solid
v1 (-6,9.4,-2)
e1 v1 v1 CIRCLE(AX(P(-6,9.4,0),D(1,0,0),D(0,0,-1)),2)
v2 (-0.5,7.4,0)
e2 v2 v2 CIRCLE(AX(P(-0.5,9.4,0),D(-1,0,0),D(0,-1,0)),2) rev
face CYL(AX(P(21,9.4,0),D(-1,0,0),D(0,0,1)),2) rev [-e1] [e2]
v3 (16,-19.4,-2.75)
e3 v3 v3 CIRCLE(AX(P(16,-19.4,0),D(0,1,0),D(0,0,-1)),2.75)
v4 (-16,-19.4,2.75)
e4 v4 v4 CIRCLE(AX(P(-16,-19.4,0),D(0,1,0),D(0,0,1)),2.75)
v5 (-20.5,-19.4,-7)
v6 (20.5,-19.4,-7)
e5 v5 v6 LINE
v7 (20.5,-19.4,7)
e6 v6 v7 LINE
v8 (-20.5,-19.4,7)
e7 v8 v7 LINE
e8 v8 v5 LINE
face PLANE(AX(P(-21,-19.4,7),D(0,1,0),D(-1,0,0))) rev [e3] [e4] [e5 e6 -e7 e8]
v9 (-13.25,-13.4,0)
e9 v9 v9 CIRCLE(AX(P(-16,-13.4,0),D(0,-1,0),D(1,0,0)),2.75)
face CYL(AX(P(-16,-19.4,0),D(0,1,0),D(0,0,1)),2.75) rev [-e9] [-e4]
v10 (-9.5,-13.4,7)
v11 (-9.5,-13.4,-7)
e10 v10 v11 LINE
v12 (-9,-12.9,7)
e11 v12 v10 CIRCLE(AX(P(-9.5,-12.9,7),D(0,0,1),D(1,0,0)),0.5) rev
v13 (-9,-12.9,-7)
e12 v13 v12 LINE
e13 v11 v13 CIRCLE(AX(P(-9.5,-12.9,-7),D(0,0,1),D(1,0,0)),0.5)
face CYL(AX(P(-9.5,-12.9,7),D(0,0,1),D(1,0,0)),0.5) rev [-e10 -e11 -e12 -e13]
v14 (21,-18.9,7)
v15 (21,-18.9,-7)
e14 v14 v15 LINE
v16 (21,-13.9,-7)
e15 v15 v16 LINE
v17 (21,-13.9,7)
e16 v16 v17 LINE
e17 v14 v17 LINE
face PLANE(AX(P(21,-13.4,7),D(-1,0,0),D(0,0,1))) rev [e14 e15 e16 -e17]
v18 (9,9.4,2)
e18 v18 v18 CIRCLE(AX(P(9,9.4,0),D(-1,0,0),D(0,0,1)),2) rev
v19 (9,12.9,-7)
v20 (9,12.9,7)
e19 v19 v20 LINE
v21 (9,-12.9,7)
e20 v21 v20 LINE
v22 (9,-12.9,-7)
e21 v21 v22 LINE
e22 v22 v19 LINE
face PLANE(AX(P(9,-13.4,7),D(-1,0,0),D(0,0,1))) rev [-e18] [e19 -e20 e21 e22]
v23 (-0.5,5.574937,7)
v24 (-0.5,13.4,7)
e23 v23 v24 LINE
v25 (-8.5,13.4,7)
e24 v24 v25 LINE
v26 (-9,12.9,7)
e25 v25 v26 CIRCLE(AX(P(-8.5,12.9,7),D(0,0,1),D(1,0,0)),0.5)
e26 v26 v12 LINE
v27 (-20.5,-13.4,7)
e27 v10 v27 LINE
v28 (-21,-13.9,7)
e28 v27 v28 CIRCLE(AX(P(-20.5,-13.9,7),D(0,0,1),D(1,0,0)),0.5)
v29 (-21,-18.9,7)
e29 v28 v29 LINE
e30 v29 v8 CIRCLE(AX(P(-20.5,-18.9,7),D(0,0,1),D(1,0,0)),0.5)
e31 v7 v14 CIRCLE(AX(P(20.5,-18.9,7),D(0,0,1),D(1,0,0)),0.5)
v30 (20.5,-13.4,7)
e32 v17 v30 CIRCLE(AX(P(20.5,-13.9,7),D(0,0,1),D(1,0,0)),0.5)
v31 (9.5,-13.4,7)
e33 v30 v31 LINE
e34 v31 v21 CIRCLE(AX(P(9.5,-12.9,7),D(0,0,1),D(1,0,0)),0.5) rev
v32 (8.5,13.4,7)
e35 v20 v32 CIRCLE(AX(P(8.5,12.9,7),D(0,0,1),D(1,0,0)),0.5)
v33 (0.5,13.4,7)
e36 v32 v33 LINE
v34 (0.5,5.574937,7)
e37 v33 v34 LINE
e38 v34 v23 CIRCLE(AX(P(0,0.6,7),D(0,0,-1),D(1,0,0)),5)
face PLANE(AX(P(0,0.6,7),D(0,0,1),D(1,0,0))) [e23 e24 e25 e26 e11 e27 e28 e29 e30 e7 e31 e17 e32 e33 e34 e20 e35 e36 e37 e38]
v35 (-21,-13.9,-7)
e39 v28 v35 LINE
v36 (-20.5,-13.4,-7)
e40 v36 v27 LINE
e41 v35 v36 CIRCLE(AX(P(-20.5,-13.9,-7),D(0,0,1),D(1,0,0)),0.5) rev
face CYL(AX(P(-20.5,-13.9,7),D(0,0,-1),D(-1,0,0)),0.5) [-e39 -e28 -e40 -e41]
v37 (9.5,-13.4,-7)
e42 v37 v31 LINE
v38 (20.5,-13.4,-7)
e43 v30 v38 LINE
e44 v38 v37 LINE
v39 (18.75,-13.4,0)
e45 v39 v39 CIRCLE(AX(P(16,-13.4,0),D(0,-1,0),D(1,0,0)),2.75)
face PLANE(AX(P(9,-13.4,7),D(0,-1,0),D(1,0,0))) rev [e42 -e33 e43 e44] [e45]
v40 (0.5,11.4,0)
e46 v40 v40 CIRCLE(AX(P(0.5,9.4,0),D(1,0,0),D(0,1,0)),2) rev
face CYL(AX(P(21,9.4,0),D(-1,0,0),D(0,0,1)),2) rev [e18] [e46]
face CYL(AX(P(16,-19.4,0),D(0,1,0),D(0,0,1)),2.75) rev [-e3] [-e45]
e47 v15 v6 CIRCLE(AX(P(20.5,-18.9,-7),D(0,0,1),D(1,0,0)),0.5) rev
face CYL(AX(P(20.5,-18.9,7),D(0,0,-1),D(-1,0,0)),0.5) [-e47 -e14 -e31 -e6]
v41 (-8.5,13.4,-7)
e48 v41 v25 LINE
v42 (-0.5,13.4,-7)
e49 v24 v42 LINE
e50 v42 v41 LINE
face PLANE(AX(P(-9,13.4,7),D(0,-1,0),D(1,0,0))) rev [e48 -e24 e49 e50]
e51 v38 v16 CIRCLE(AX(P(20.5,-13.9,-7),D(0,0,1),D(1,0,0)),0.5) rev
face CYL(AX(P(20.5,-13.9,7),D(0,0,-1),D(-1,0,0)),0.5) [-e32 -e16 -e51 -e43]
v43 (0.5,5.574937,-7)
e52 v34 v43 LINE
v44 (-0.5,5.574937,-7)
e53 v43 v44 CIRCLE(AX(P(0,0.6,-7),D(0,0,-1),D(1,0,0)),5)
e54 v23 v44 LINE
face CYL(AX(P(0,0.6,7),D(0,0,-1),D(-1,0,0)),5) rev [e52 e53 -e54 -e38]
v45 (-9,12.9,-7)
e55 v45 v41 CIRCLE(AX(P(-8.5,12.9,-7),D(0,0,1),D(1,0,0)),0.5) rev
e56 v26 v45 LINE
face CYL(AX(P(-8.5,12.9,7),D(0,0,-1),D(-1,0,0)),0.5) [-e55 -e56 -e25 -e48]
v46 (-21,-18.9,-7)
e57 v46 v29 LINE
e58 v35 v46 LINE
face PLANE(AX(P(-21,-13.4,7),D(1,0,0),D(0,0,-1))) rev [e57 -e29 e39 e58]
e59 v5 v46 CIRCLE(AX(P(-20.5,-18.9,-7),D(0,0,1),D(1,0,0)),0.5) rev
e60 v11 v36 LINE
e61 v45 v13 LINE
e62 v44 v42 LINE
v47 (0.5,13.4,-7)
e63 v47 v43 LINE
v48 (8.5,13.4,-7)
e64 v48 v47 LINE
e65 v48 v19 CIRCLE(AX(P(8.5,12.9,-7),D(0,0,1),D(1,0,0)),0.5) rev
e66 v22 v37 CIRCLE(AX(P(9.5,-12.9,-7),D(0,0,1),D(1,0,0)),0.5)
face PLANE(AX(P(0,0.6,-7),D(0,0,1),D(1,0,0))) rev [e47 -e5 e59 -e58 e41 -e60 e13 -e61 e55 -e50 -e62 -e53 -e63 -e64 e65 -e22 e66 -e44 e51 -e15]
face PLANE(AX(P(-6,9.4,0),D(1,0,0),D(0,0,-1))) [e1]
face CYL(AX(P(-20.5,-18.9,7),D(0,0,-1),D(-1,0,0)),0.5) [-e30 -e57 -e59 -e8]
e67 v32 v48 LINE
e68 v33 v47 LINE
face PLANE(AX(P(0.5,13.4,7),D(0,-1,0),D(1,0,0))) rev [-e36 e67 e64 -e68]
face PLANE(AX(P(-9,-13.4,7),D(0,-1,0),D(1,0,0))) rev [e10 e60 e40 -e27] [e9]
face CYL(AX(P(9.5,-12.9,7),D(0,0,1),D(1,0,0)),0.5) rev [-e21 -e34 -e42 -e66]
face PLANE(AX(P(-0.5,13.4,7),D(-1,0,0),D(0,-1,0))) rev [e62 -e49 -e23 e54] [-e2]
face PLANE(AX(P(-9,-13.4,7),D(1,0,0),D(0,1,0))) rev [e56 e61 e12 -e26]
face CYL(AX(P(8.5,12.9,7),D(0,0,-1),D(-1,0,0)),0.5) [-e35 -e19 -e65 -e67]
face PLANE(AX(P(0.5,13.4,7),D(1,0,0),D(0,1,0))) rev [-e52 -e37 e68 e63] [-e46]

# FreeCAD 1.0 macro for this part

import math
import FreeCAD as App
import Part
import Sketcher

V = App.Vector


def edges_at(feature, points):
    """Names of the edges that pass closest to the given points."""
    edges = feature.Shape.Edges
    near = lambda p: min(range(len(edges)), key=lambda i: edges[i].distToShape(Part.Vertex(*p))[0])
    return sorted({f"Edge{near(p) + 1}" for p in points})

doc = App.newDocument("Part")
body = doc.addObject("PartDesign::Body", "Body")

sketch1 = body.newObject("Sketcher::SketchObject", "Sketch")
sketch1.AttachmentSupport = (doc.getObject("XY_Plane"), [""])
sketch1.MapMode = "FlatFace"
sketch1.addGeometry([
    Part.LineSegment(V(-9, 13.4, 0), V(-9, -13.4, 0)),
    Part.LineSegment(V(-9, -13.4, 0), V(-21, -13.4, 0)),
    Part.LineSegment(V(-21, -13.4, 0), V(-21, -19.4, 0)),
    Part.LineSegment(V(-21, -19.4, 0), V(21, -19.4, 0)),
    Part.LineSegment(V(21, -19.4, 0), V(21, -13.4, 0)),
    Part.LineSegment(V(21, -13.4, 0), V(9, -13.4, 0)),
    Part.LineSegment(V(9, -13.4, 0), V(9, 13.4, 0)),
    Part.LineSegment(V(9, 13.4, 0), V(0.5, 13.4, 0)),
    Part.LineSegment(V(0.5, 13.4, 0), V(0.5, 5.6, 0)),
    Part.ArcOfCircle(Part.Circle(V(0, 0.6, 0), V(0, 0, 1), 5), math.radians(96), math.radians(444)),
    Part.LineSegment(V(-0.5, 5.6, 0), V(-0.5, 13.4, 0)),
    Part.LineSegment(V(-0.5, 13.4, 0), V(-9, 13.4, 0)),
], False)
sketch1.addConstraint([
    Sketcher.Constraint("Coincident", 0, 2, 1, 1),
    Sketcher.Constraint("Coincident", 1, 2, 2, 1),
    Sketcher.Constraint("Coincident", 2, 2, 3, 1),
    Sketcher.Constraint("Coincident", 3, 2, 4, 1),
    Sketcher.Constraint("Coincident", 4, 2, 5, 1),
    Sketcher.Constraint("Coincident", 5, 2, 6, 1),
    Sketcher.Constraint("Coincident", 6, 2, 7, 1),
    Sketcher.Constraint("Coincident", 7, 2, 8, 1),
    Sketcher.Constraint("Coincident", 8, 2, 9, 2),
    Sketcher.Constraint("Coincident", 9, 1, 10, 1),
    Sketcher.Constraint("Coincident", 10, 2, 11, 1),
    Sketcher.Constraint("Coincident", 11, 2, 0, 1),
    Sketcher.Constraint("Vertical", 0),
    Sketcher.Constraint("Horizontal", 1),
    Sketcher.Constraint("Vertical", 2),
    Sketcher.Constraint("Horizontal", 3),
    Sketcher.Constraint("Vertical", 4),
    Sketcher.Constraint("Horizontal", 5),
    Sketcher.Constraint("Vertical", 6),
    Sketcher.Constraint("Horizontal", 7),
    Sketcher.Constraint("Vertical", 8),
    Sketcher.Constraint("Vertical", 10),
    Sketcher.Constraint("Horizontal", 11),
    Sketcher.Constraint("Symmetric", 0, 2, 6, 2, -1, 1),
    Sketcher.Constraint("Symmetric", 1, 2, 4, 2, -2),
    Sketcher.Constraint("Symmetric", 8, 2, 9, 1, -2),
    Sketcher.Constraint("Horizontal", 7, 2, 10, 2),
    Sketcher.Constraint("Radius", 9, 5.0),
    Sketcher.Constraint("DistanceX", 1, 2, 1, 1, 12.0),
    Sketcher.Constraint("DistanceX", 3, 1, 3, 2, 42.0),
    Sketcher.Constraint("DistanceY", 2, 2, 2, 1, 6.0),
    Sketcher.Constraint("DistanceX", 7, 2, 7, 1, 8.5),
    Sketcher.Constraint("DistanceY", 0, 2, 0, 1, 26.8),
    Sketcher.Constraint("DistanceY", 0, 2, 9, 3, 14.0),
])
pad1 = body.newObject("PartDesign::Pad", "Pad")
pad1.Profile = sketch1
pad1.Length = 14
pad1.Midplane = True

sketch2 = body.newObject("Sketcher::SketchObject", "Sketch001")
sketch2.AttachmentSupport = (doc.getObject("XZ_Plane"), [""])
sketch2.MapMode = "FlatFace"
sketch2.addGeometry([
    Part.Circle(V(-16, 0, 0), V(0, 0, 1), 2.8),
    Part.Circle(V(16, 0, 0), V(0, 0, 1), 2.8),
], False)
sketch2.addConstraint([
    Sketcher.Constraint("Equal", 0, 1),
    Sketcher.Constraint("Symmetric", 0, 3, 1, 3, -1, 1),
    Sketcher.Constraint("PointOnObject", 0, 3, -1),
    Sketcher.Constraint("Diameter", 0, 5.5),
    Sketcher.Constraint("DistanceX", 0, 3, -1, 1, 16.0),
])
pocket1 = body.newObject("PartDesign::Pocket", "Pocket")
pocket1.Profile = sketch2
pocket1.Type = "ThroughAll"
pocket1.Reversed = True

sketch3 = body.newObject("Sketcher::SketchObject", "Sketch002")
sketch3.AttachmentSupport = (doc.getObject("YZ_Plane"), [""])
sketch3.MapMode = "FlatFace"
sketch3.addGeometry(Part.Circle(V(9.4, 0, 0), V(0, 0, 1), 2), False)
sketch3.addConstraint([
    Sketcher.Constraint("PointOnObject", 0, 3, -1),
    Sketcher.Constraint("Diameter", 0, 4.0),
    Sketcher.Constraint("DistanceX", -1, 1, 0, 3, 9.4),
])
pocket2 = body.newObject("PartDesign::Pocket", "Pocket001")
pocket2.Profile = sketch3
pocket2.Type = "TwoLengths"
pocket2.Length = 30.433994
pocket2.Length2 = 6
pocket2.Reversed = True
doc.recompute()

fillet = body.newObject("PartDesign::Fillet", "Fillet")
fillet.Base = (pocket2, edges_at(pocket2, [
    (9, 13.4, 0),
    (9, -13.4, 0),
    (21, -13.4, 0),
    (21, -19.4, 0),
    (-21, -19.4, 0),
    (-21, -13.4, 0),
    (-9, -13.4, 0),
    (-9, 13.4, 0),
]))
fillet.Radius = 0.5

doc.recompute()
